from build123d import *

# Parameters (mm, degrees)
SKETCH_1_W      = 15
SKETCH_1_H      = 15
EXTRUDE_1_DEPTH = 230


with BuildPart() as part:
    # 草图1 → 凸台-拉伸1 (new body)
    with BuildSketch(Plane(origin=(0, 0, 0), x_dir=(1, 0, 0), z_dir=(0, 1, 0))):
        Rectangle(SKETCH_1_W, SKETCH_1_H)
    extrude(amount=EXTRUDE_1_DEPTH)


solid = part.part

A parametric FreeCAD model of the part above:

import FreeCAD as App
import Part
import Sketcher

V = App.Vector

doc = App.newDocument("Part")
body = doc.addObject("PartDesign::Body", "Body")

# Sketch on XZ plane
sketch1 = doc.addObject("Sketcher::SketchObject", "Sketch")
body.addObject(sketch1)
sketch1.AttachmentSupport = (doc.XZ_Plane, [""])
sketch1.MapMode = "FlatFace"
sketch1.addGeometry(Part.LineSegment(V(-7.5, -7.5, 0), V(-7.5, 7.5, 0)), False)
sketch1.addGeometry(Part.LineSegment(V(-7.5, 7.5, 0), V(7.5, 7.5, 0)), False)
sketch1.addGeometry(Part.LineSegment(V(7.5, 7.5, 0), V(7.5, -7.5, 0)), False)
sketch1.addGeometry(Part.LineSegment(V(7.5, -7.5, 0), V(-7.5, -7.5, 0)), False)
sketch1.addConstraint(Sketcher.Constraint("Coincident", 0, 2, 1, 1))
sketch1.addConstraint(Sketcher.Constraint("Coincident", 1, 2, 2, 1))
sketch1.addConstraint(Sketcher.Constraint("Coincident", 2, 2, 3, 1))
sketch1.addConstraint(Sketcher.Constraint("Coincident", 3, 2, 0, 1))
sketch1.addConstraint(Sketcher.Constraint("Vertical", 0))
sketch1.addConstraint(Sketcher.Constraint("Horizontal", 1))
sketch1.addConstraint(Sketcher.Constraint("Vertical", 2))
sketch1.addConstraint(Sketcher.Constraint("Horizontal", 3))
sketch1.addConstraint(Sketcher.Constraint("Symmetric", 0, 2, 2, 2, -1, 1))
sketch1.addConstraint(Sketcher.Constraint("Equal", 3, 0))
sketch1.addConstraint(Sketcher.Constraint("DistanceX", 1, 1, 1, 2, 15.0))
pad1 = doc.addObject("PartDesign::Pad", "Pad")
body.addObject(pad1)
pad1.Profile = sketch1
pad1.Length = 230
pad1.Reversed = True

doc.recompute()
